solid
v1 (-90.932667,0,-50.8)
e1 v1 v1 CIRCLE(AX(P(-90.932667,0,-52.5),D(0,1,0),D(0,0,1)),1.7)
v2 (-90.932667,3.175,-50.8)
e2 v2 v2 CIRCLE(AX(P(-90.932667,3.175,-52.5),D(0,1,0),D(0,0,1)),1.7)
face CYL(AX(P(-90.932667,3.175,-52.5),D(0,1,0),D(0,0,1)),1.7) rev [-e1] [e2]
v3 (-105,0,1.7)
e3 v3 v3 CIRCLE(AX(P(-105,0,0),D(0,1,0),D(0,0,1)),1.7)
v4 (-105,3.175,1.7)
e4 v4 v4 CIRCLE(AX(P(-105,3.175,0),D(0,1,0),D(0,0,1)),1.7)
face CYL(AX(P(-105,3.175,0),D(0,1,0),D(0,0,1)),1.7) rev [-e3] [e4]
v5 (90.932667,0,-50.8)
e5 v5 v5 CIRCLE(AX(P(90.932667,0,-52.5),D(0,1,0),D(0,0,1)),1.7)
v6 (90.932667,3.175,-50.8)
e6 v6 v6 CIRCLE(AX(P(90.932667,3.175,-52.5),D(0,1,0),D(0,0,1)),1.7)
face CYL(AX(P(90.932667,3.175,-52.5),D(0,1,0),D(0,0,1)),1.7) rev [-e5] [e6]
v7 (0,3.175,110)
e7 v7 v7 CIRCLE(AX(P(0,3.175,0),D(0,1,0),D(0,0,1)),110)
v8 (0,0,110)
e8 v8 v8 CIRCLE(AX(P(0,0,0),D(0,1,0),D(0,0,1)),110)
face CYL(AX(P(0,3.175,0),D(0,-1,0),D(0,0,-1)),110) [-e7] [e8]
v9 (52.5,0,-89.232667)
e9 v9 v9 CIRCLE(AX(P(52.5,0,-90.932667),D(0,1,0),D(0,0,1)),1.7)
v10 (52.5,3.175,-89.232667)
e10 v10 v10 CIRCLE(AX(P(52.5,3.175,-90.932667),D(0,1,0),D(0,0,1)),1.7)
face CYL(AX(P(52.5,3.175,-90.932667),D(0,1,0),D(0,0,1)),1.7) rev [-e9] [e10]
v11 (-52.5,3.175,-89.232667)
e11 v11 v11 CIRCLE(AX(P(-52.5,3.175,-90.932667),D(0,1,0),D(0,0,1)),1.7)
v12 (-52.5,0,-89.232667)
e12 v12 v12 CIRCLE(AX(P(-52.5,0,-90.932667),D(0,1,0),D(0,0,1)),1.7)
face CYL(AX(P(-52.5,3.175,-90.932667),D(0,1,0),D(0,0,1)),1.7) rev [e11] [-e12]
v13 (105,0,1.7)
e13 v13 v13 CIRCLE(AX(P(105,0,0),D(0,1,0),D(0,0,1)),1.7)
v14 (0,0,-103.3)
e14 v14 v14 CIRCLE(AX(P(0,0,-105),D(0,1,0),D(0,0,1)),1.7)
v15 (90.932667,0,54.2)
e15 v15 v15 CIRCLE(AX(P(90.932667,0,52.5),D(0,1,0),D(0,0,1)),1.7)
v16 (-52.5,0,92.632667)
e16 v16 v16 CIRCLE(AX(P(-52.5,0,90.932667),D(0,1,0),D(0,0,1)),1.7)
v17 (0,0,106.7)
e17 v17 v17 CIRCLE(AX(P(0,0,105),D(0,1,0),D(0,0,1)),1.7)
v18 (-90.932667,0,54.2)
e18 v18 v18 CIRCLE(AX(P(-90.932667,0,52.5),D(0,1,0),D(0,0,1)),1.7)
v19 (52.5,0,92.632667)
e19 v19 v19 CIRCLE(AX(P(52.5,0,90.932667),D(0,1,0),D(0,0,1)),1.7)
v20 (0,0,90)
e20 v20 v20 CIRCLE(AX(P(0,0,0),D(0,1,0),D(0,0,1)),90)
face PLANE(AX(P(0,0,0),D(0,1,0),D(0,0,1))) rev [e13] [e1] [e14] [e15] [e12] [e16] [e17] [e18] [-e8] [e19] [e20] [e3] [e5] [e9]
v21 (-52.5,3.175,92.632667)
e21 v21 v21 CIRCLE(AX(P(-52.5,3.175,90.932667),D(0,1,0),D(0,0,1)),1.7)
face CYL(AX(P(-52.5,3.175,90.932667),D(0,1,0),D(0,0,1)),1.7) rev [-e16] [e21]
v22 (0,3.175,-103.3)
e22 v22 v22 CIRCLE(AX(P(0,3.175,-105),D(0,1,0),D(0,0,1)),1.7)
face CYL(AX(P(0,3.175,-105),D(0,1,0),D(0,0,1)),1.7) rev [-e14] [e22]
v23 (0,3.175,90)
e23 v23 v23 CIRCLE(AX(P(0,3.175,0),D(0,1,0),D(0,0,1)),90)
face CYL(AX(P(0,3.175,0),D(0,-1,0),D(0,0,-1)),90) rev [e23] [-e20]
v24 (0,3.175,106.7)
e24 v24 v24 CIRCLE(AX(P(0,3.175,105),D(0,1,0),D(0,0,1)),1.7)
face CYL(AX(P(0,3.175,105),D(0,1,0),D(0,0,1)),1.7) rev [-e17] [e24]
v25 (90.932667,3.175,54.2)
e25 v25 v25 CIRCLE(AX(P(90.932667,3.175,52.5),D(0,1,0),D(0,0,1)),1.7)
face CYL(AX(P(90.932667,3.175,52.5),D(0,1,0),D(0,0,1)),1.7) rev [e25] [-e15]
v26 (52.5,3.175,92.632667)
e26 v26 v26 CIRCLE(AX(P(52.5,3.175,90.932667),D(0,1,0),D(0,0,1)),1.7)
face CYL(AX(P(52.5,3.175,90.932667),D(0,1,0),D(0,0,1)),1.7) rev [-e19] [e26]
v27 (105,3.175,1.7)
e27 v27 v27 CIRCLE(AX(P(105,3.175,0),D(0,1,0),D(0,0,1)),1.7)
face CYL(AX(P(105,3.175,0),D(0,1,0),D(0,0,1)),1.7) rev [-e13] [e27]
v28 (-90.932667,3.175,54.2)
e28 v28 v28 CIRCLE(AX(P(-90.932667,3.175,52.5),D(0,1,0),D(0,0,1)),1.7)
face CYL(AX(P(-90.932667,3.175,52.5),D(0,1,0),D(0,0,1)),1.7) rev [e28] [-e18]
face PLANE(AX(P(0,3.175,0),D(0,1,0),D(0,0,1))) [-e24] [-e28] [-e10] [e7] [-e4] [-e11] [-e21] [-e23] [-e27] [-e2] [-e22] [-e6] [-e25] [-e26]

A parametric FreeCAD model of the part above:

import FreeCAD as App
import Part
import Sketcher

V = App.Vector

doc = App.newDocument("Part")
params = doc.addObject("Spreadsheet::Sheet", "Params")
for row, (alias, value) in enumerate([
    ("sketch1_diameter", "220 mm"),
    ("sketch1_diameter2", "180 mm"),
    ("pad1_length", "3.175 mm"),
    ("sketch2_diameter", "3.4 mm"),
    ("hole_diameter", "3.4 mm"),
], start=1):
    params.set(f"A{row}", alias)
    params.set(f"B{row}", "=" + value)
    params.setAlias(f"B{row}", alias)

body = doc.addObject("PartDesign::Body", "Body")

# Sketch on XZ plane
sketch1 = doc.addObject("Sketcher::SketchObject", "Sketch")
body.addObject(sketch1)
sketch1.AttachmentSupport = (doc.XZ_Plane, [""])
sketch1.MapMode = "FlatFace"
sketch1.addGeometry(Part.Circle(V(0, 0, 0), V(0, 0, 1), 110), False)
sketch1.addGeometry(Part.Circle(V(0, 0, 0), V(0, 0, 1), 90), False)
sketch1.addConstraint(Sketcher.Constraint("Coincident", 0, 3, -1, 1))
sketch1.addConstraint(Sketcher.Constraint("Coincident", 1, 3, -1, 1))
sketch1.addConstraint(Sketcher.Constraint("Diameter", 0, 220.0))
sketch1.addConstraint(Sketcher.Constraint("Diameter", 1, 180.0))
sketch1.setExpression("Constraints[2]", "Params.sketch1_diameter")
sketch1.setExpression("Constraints[3]", "Params.sketch1_diameter2")
pad1 = doc.addObject("PartDesign::Pad", "Pad")
body.addObject(pad1)
pad1.Profile = sketch1
pad1.setExpression("Length", "Params.pad1_length")
pad1.Reversed = True

# Sketch on XZ plane
sketch2 = doc.addObject("Sketcher::SketchObject", "Sketch001")
body.addObject(sketch2)
sketch2.AttachmentSupport = (doc.XZ_Plane, [""])
sketch2.MapMode = "FlatFace"
sketch2.AttachmentOffset = App.Placement(V(0, 0, -3.175), App.Rotation())
sketch2.addGeometry(Part.Circle(V(0, -105, 0), V(0, 0, 1), 1.7), False)
sketch2.addGeometry(Part.Circle(V(52.5, -90.9, 0), V(0, 0, 1), 1.7), False)
sketch2.addGeometry(Part.Circle(V(90.9, -52.5, 0), V(0, 0, 1), 1.7), False)
sketch2.addGeometry(Part.Circle(V(105, 0, 0), V(0, 0, 1), 1.7), False)
sketch2.addGeometry(Part.Circle(V(90.9, 52.5, 0), V(0, 0, 1), 1.7), False)
sketch2.addGeometry(Part.Circle(V(52.5, 90.9, 0), V(0, 0, 1), 1.7), False)
sketch2.addGeometry(Part.Circle(V(0, 105, 0), V(0, 0, 1), 1.7), False)
sketch2.addGeometry(Part.Circle(V(-52.5, 90.9, 0), V(0, 0, 1), 1.7), False)
sketch2.addGeometry(Part.Circle(V(-90.9, 52.5, 0), V(0, 0, 1), 1.7), False)
sketch2.addGeometry(Part.Circle(V(-105, 0, 0), V(0, 0, 1), 1.7), False)
sketch2.addGeometry(Part.Circle(V(-90.9, -52.5, 0), V(0, 0, 1), 1.7), False)
sketch2.addGeometry(Part.Circle(V(-52.5, -90.9, 0), V(0, 0, 1), 1.7), False)
sketch2.addConstraint(Sketcher.Constraint("Equal", 0, 1))
sketch2.addConstraint(Sketcher.Constraint("Equal", 1, 2))
sketch2.addConstraint(Sketcher.Constraint("Equal", 2, 3))
sketch2.addConstraint(Sketcher.Constraint("Equal", 3, 4))
sketch2.addConstraint(Sketcher.Constraint("Equal", 4, 5))
sketch2.addConstraint(Sketcher.Constraint("Equal", 5, 6))
sketch2.addConstraint(Sketcher.Constraint("Equal", 6, 7))
sketch2.addConstraint(Sketcher.Constraint("Equal", 7, 8))
sketch2.addConstraint(Sketcher.Constraint("Equal", 8, 9))
sketch2.addConstraint(Sketcher.Constraint("Equal", 9, 10))
sketch2.addConstraint(Sketcher.Constraint("Equal", 10, 11))
sketch2.addConstraint(Sketcher.Constraint("Symmetric", 0, 3, 6, 3, -1, 1))
sketch2.addConstraint(Sketcher.Constraint("Symmetric", 1, 3, 7, 3, -1, 1))
sketch2.addConstraint(Sketcher.Constraint("Symmetric", 2, 3, 8, 3, -1, 1))
sketch2.addConstraint(Sketcher.Constraint("Symmetric", 3, 3, 9, 3, -1, 1))
sketch2.addConstraint(Sketcher.Constraint("Symmetric", 4, 3, 10, 3, -1, 1))
sketch2.addConstraint(Sketcher.Constraint("Symmetric", 5, 3, 11, 3, -1, 1))
sketch2.addConstraint(Sketcher.Constraint("Symmetric", 5, 3, 7, 3, -2))
sketch2.addConstraint(Sketcher.Constraint("Symmetric", 4, 3, 8, 3, -2))
sketch2.addConstraint(Sketcher.Constraint("PointOnObject", 0, 3, -2))
sketch2.addConstraint(Sketcher.Constraint("PointOnObject", 3, 3, -1))
sketch2.addConstraint(Sketcher.Constraint("Diameter", 0, 3.4))
sketch2.addConstraint(Sketcher.Constraint("DistanceY", 0, 3, -1, 1, 105.0))
sketch2.addConstraint(Sketcher.Constraint("DistanceX", -1, 1, 3, 3, 105.0))
sketch2.addConstraint(Sketcher.Constraint("DistanceY", 2, 3, 4, 3, 105.0))
sketch2.addConstraint(Sketcher.Constraint("DistanceX", 7, 3, 5, 3, 105.0))
sketch2.addConstraint(Sketcher.Constraint("DistanceY", 1, 3, -1, 1, 90.932667))
sketch2.addConstraint(Sketcher.Constraint("DistanceX", -1, 1, 2, 3, 90.932667))
sketch2.setExpression("Constraints[21]", "Params.sketch2_diameter")
doc.recompute()
hole = doc.addObject("PartDesign::Hole", "Hole")
body.addObject(hole)
hole.Profile = sketch2
hole.ThreadType = "None"
hole.setExpression("Diameter", "Params.hole_diameter")
hole.DepthType = "ThroughAll"
hole.Reversed = True

doc.recompute()
